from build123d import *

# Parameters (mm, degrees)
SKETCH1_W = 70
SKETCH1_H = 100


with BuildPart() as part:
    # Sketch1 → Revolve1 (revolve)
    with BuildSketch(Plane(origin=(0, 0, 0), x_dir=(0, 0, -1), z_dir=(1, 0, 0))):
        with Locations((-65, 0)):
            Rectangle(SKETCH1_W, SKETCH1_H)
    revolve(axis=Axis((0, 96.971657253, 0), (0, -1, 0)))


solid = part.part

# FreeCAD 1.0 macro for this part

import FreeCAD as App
import Part
import Sketcher
from FreeCAD import Vector


def add_polygon(sketch, points):
    """Adds a closed chain of lines whose ends are joined by coincident constraints."""
    first, n = sketch.GeometryCount, len(points)
    for a, b in zip(points, points[1:] + points[:1]):
        sketch.addGeometry(Part.LineSegment(App.Vector(*a, 0), App.Vector(*b, 0)), False)
    for i in range(n):
        sketch.addConstraint(Sketcher.Constraint("Coincident", first + i, 2, first + (i + 1) % n, 1))

doc = App.newDocument("Part")
body = doc.addObject("PartDesign::Body", "Body")

sketch1 = body.newObject("Sketcher::SketchObject", "Sketch")
sketch1.AttachmentSupport = (doc.getObject("YZ_Plane"), [""])
sketch1.MapMode = "FlatFace"
add_polygon(sketch1, [(50, 100), (-50, 100), (-50, 30), (50, 30)])
sketch1.addConstraint(Sketcher.Constraint("Horizontal", 0))
sketch1.addConstraint(Sketcher.Constraint("Vertical", 1))
sketch1.addConstraint(Sketcher.Constraint("Horizontal", 2))
sketch1.addConstraint(Sketcher.Constraint("Vertical", 3))
sketch1.addConstraint(Sketcher.Constraint("DistanceX", 0, 2, 0, 1, 100.0))
sketch1.addConstraint(Sketcher.Constraint("DistanceY", 1, 2, 1, 1, 70.0))
sketch1.addConstraint(Sketcher.Constraint("DistanceX", 0, 2, -1, 1, 50.0))
sketch1.addConstraint(Sketcher.Constraint("DistanceY", -1, 1, 0, 2, 100.0))
revolution = body.newObject("PartDesign::Revolution", "Revolution")
revolution.Profile = sketch1
revolution.ReferenceAxis = (sketch1, ["H_Axis"])
revolution.Angle = 360

doc.recompute()
